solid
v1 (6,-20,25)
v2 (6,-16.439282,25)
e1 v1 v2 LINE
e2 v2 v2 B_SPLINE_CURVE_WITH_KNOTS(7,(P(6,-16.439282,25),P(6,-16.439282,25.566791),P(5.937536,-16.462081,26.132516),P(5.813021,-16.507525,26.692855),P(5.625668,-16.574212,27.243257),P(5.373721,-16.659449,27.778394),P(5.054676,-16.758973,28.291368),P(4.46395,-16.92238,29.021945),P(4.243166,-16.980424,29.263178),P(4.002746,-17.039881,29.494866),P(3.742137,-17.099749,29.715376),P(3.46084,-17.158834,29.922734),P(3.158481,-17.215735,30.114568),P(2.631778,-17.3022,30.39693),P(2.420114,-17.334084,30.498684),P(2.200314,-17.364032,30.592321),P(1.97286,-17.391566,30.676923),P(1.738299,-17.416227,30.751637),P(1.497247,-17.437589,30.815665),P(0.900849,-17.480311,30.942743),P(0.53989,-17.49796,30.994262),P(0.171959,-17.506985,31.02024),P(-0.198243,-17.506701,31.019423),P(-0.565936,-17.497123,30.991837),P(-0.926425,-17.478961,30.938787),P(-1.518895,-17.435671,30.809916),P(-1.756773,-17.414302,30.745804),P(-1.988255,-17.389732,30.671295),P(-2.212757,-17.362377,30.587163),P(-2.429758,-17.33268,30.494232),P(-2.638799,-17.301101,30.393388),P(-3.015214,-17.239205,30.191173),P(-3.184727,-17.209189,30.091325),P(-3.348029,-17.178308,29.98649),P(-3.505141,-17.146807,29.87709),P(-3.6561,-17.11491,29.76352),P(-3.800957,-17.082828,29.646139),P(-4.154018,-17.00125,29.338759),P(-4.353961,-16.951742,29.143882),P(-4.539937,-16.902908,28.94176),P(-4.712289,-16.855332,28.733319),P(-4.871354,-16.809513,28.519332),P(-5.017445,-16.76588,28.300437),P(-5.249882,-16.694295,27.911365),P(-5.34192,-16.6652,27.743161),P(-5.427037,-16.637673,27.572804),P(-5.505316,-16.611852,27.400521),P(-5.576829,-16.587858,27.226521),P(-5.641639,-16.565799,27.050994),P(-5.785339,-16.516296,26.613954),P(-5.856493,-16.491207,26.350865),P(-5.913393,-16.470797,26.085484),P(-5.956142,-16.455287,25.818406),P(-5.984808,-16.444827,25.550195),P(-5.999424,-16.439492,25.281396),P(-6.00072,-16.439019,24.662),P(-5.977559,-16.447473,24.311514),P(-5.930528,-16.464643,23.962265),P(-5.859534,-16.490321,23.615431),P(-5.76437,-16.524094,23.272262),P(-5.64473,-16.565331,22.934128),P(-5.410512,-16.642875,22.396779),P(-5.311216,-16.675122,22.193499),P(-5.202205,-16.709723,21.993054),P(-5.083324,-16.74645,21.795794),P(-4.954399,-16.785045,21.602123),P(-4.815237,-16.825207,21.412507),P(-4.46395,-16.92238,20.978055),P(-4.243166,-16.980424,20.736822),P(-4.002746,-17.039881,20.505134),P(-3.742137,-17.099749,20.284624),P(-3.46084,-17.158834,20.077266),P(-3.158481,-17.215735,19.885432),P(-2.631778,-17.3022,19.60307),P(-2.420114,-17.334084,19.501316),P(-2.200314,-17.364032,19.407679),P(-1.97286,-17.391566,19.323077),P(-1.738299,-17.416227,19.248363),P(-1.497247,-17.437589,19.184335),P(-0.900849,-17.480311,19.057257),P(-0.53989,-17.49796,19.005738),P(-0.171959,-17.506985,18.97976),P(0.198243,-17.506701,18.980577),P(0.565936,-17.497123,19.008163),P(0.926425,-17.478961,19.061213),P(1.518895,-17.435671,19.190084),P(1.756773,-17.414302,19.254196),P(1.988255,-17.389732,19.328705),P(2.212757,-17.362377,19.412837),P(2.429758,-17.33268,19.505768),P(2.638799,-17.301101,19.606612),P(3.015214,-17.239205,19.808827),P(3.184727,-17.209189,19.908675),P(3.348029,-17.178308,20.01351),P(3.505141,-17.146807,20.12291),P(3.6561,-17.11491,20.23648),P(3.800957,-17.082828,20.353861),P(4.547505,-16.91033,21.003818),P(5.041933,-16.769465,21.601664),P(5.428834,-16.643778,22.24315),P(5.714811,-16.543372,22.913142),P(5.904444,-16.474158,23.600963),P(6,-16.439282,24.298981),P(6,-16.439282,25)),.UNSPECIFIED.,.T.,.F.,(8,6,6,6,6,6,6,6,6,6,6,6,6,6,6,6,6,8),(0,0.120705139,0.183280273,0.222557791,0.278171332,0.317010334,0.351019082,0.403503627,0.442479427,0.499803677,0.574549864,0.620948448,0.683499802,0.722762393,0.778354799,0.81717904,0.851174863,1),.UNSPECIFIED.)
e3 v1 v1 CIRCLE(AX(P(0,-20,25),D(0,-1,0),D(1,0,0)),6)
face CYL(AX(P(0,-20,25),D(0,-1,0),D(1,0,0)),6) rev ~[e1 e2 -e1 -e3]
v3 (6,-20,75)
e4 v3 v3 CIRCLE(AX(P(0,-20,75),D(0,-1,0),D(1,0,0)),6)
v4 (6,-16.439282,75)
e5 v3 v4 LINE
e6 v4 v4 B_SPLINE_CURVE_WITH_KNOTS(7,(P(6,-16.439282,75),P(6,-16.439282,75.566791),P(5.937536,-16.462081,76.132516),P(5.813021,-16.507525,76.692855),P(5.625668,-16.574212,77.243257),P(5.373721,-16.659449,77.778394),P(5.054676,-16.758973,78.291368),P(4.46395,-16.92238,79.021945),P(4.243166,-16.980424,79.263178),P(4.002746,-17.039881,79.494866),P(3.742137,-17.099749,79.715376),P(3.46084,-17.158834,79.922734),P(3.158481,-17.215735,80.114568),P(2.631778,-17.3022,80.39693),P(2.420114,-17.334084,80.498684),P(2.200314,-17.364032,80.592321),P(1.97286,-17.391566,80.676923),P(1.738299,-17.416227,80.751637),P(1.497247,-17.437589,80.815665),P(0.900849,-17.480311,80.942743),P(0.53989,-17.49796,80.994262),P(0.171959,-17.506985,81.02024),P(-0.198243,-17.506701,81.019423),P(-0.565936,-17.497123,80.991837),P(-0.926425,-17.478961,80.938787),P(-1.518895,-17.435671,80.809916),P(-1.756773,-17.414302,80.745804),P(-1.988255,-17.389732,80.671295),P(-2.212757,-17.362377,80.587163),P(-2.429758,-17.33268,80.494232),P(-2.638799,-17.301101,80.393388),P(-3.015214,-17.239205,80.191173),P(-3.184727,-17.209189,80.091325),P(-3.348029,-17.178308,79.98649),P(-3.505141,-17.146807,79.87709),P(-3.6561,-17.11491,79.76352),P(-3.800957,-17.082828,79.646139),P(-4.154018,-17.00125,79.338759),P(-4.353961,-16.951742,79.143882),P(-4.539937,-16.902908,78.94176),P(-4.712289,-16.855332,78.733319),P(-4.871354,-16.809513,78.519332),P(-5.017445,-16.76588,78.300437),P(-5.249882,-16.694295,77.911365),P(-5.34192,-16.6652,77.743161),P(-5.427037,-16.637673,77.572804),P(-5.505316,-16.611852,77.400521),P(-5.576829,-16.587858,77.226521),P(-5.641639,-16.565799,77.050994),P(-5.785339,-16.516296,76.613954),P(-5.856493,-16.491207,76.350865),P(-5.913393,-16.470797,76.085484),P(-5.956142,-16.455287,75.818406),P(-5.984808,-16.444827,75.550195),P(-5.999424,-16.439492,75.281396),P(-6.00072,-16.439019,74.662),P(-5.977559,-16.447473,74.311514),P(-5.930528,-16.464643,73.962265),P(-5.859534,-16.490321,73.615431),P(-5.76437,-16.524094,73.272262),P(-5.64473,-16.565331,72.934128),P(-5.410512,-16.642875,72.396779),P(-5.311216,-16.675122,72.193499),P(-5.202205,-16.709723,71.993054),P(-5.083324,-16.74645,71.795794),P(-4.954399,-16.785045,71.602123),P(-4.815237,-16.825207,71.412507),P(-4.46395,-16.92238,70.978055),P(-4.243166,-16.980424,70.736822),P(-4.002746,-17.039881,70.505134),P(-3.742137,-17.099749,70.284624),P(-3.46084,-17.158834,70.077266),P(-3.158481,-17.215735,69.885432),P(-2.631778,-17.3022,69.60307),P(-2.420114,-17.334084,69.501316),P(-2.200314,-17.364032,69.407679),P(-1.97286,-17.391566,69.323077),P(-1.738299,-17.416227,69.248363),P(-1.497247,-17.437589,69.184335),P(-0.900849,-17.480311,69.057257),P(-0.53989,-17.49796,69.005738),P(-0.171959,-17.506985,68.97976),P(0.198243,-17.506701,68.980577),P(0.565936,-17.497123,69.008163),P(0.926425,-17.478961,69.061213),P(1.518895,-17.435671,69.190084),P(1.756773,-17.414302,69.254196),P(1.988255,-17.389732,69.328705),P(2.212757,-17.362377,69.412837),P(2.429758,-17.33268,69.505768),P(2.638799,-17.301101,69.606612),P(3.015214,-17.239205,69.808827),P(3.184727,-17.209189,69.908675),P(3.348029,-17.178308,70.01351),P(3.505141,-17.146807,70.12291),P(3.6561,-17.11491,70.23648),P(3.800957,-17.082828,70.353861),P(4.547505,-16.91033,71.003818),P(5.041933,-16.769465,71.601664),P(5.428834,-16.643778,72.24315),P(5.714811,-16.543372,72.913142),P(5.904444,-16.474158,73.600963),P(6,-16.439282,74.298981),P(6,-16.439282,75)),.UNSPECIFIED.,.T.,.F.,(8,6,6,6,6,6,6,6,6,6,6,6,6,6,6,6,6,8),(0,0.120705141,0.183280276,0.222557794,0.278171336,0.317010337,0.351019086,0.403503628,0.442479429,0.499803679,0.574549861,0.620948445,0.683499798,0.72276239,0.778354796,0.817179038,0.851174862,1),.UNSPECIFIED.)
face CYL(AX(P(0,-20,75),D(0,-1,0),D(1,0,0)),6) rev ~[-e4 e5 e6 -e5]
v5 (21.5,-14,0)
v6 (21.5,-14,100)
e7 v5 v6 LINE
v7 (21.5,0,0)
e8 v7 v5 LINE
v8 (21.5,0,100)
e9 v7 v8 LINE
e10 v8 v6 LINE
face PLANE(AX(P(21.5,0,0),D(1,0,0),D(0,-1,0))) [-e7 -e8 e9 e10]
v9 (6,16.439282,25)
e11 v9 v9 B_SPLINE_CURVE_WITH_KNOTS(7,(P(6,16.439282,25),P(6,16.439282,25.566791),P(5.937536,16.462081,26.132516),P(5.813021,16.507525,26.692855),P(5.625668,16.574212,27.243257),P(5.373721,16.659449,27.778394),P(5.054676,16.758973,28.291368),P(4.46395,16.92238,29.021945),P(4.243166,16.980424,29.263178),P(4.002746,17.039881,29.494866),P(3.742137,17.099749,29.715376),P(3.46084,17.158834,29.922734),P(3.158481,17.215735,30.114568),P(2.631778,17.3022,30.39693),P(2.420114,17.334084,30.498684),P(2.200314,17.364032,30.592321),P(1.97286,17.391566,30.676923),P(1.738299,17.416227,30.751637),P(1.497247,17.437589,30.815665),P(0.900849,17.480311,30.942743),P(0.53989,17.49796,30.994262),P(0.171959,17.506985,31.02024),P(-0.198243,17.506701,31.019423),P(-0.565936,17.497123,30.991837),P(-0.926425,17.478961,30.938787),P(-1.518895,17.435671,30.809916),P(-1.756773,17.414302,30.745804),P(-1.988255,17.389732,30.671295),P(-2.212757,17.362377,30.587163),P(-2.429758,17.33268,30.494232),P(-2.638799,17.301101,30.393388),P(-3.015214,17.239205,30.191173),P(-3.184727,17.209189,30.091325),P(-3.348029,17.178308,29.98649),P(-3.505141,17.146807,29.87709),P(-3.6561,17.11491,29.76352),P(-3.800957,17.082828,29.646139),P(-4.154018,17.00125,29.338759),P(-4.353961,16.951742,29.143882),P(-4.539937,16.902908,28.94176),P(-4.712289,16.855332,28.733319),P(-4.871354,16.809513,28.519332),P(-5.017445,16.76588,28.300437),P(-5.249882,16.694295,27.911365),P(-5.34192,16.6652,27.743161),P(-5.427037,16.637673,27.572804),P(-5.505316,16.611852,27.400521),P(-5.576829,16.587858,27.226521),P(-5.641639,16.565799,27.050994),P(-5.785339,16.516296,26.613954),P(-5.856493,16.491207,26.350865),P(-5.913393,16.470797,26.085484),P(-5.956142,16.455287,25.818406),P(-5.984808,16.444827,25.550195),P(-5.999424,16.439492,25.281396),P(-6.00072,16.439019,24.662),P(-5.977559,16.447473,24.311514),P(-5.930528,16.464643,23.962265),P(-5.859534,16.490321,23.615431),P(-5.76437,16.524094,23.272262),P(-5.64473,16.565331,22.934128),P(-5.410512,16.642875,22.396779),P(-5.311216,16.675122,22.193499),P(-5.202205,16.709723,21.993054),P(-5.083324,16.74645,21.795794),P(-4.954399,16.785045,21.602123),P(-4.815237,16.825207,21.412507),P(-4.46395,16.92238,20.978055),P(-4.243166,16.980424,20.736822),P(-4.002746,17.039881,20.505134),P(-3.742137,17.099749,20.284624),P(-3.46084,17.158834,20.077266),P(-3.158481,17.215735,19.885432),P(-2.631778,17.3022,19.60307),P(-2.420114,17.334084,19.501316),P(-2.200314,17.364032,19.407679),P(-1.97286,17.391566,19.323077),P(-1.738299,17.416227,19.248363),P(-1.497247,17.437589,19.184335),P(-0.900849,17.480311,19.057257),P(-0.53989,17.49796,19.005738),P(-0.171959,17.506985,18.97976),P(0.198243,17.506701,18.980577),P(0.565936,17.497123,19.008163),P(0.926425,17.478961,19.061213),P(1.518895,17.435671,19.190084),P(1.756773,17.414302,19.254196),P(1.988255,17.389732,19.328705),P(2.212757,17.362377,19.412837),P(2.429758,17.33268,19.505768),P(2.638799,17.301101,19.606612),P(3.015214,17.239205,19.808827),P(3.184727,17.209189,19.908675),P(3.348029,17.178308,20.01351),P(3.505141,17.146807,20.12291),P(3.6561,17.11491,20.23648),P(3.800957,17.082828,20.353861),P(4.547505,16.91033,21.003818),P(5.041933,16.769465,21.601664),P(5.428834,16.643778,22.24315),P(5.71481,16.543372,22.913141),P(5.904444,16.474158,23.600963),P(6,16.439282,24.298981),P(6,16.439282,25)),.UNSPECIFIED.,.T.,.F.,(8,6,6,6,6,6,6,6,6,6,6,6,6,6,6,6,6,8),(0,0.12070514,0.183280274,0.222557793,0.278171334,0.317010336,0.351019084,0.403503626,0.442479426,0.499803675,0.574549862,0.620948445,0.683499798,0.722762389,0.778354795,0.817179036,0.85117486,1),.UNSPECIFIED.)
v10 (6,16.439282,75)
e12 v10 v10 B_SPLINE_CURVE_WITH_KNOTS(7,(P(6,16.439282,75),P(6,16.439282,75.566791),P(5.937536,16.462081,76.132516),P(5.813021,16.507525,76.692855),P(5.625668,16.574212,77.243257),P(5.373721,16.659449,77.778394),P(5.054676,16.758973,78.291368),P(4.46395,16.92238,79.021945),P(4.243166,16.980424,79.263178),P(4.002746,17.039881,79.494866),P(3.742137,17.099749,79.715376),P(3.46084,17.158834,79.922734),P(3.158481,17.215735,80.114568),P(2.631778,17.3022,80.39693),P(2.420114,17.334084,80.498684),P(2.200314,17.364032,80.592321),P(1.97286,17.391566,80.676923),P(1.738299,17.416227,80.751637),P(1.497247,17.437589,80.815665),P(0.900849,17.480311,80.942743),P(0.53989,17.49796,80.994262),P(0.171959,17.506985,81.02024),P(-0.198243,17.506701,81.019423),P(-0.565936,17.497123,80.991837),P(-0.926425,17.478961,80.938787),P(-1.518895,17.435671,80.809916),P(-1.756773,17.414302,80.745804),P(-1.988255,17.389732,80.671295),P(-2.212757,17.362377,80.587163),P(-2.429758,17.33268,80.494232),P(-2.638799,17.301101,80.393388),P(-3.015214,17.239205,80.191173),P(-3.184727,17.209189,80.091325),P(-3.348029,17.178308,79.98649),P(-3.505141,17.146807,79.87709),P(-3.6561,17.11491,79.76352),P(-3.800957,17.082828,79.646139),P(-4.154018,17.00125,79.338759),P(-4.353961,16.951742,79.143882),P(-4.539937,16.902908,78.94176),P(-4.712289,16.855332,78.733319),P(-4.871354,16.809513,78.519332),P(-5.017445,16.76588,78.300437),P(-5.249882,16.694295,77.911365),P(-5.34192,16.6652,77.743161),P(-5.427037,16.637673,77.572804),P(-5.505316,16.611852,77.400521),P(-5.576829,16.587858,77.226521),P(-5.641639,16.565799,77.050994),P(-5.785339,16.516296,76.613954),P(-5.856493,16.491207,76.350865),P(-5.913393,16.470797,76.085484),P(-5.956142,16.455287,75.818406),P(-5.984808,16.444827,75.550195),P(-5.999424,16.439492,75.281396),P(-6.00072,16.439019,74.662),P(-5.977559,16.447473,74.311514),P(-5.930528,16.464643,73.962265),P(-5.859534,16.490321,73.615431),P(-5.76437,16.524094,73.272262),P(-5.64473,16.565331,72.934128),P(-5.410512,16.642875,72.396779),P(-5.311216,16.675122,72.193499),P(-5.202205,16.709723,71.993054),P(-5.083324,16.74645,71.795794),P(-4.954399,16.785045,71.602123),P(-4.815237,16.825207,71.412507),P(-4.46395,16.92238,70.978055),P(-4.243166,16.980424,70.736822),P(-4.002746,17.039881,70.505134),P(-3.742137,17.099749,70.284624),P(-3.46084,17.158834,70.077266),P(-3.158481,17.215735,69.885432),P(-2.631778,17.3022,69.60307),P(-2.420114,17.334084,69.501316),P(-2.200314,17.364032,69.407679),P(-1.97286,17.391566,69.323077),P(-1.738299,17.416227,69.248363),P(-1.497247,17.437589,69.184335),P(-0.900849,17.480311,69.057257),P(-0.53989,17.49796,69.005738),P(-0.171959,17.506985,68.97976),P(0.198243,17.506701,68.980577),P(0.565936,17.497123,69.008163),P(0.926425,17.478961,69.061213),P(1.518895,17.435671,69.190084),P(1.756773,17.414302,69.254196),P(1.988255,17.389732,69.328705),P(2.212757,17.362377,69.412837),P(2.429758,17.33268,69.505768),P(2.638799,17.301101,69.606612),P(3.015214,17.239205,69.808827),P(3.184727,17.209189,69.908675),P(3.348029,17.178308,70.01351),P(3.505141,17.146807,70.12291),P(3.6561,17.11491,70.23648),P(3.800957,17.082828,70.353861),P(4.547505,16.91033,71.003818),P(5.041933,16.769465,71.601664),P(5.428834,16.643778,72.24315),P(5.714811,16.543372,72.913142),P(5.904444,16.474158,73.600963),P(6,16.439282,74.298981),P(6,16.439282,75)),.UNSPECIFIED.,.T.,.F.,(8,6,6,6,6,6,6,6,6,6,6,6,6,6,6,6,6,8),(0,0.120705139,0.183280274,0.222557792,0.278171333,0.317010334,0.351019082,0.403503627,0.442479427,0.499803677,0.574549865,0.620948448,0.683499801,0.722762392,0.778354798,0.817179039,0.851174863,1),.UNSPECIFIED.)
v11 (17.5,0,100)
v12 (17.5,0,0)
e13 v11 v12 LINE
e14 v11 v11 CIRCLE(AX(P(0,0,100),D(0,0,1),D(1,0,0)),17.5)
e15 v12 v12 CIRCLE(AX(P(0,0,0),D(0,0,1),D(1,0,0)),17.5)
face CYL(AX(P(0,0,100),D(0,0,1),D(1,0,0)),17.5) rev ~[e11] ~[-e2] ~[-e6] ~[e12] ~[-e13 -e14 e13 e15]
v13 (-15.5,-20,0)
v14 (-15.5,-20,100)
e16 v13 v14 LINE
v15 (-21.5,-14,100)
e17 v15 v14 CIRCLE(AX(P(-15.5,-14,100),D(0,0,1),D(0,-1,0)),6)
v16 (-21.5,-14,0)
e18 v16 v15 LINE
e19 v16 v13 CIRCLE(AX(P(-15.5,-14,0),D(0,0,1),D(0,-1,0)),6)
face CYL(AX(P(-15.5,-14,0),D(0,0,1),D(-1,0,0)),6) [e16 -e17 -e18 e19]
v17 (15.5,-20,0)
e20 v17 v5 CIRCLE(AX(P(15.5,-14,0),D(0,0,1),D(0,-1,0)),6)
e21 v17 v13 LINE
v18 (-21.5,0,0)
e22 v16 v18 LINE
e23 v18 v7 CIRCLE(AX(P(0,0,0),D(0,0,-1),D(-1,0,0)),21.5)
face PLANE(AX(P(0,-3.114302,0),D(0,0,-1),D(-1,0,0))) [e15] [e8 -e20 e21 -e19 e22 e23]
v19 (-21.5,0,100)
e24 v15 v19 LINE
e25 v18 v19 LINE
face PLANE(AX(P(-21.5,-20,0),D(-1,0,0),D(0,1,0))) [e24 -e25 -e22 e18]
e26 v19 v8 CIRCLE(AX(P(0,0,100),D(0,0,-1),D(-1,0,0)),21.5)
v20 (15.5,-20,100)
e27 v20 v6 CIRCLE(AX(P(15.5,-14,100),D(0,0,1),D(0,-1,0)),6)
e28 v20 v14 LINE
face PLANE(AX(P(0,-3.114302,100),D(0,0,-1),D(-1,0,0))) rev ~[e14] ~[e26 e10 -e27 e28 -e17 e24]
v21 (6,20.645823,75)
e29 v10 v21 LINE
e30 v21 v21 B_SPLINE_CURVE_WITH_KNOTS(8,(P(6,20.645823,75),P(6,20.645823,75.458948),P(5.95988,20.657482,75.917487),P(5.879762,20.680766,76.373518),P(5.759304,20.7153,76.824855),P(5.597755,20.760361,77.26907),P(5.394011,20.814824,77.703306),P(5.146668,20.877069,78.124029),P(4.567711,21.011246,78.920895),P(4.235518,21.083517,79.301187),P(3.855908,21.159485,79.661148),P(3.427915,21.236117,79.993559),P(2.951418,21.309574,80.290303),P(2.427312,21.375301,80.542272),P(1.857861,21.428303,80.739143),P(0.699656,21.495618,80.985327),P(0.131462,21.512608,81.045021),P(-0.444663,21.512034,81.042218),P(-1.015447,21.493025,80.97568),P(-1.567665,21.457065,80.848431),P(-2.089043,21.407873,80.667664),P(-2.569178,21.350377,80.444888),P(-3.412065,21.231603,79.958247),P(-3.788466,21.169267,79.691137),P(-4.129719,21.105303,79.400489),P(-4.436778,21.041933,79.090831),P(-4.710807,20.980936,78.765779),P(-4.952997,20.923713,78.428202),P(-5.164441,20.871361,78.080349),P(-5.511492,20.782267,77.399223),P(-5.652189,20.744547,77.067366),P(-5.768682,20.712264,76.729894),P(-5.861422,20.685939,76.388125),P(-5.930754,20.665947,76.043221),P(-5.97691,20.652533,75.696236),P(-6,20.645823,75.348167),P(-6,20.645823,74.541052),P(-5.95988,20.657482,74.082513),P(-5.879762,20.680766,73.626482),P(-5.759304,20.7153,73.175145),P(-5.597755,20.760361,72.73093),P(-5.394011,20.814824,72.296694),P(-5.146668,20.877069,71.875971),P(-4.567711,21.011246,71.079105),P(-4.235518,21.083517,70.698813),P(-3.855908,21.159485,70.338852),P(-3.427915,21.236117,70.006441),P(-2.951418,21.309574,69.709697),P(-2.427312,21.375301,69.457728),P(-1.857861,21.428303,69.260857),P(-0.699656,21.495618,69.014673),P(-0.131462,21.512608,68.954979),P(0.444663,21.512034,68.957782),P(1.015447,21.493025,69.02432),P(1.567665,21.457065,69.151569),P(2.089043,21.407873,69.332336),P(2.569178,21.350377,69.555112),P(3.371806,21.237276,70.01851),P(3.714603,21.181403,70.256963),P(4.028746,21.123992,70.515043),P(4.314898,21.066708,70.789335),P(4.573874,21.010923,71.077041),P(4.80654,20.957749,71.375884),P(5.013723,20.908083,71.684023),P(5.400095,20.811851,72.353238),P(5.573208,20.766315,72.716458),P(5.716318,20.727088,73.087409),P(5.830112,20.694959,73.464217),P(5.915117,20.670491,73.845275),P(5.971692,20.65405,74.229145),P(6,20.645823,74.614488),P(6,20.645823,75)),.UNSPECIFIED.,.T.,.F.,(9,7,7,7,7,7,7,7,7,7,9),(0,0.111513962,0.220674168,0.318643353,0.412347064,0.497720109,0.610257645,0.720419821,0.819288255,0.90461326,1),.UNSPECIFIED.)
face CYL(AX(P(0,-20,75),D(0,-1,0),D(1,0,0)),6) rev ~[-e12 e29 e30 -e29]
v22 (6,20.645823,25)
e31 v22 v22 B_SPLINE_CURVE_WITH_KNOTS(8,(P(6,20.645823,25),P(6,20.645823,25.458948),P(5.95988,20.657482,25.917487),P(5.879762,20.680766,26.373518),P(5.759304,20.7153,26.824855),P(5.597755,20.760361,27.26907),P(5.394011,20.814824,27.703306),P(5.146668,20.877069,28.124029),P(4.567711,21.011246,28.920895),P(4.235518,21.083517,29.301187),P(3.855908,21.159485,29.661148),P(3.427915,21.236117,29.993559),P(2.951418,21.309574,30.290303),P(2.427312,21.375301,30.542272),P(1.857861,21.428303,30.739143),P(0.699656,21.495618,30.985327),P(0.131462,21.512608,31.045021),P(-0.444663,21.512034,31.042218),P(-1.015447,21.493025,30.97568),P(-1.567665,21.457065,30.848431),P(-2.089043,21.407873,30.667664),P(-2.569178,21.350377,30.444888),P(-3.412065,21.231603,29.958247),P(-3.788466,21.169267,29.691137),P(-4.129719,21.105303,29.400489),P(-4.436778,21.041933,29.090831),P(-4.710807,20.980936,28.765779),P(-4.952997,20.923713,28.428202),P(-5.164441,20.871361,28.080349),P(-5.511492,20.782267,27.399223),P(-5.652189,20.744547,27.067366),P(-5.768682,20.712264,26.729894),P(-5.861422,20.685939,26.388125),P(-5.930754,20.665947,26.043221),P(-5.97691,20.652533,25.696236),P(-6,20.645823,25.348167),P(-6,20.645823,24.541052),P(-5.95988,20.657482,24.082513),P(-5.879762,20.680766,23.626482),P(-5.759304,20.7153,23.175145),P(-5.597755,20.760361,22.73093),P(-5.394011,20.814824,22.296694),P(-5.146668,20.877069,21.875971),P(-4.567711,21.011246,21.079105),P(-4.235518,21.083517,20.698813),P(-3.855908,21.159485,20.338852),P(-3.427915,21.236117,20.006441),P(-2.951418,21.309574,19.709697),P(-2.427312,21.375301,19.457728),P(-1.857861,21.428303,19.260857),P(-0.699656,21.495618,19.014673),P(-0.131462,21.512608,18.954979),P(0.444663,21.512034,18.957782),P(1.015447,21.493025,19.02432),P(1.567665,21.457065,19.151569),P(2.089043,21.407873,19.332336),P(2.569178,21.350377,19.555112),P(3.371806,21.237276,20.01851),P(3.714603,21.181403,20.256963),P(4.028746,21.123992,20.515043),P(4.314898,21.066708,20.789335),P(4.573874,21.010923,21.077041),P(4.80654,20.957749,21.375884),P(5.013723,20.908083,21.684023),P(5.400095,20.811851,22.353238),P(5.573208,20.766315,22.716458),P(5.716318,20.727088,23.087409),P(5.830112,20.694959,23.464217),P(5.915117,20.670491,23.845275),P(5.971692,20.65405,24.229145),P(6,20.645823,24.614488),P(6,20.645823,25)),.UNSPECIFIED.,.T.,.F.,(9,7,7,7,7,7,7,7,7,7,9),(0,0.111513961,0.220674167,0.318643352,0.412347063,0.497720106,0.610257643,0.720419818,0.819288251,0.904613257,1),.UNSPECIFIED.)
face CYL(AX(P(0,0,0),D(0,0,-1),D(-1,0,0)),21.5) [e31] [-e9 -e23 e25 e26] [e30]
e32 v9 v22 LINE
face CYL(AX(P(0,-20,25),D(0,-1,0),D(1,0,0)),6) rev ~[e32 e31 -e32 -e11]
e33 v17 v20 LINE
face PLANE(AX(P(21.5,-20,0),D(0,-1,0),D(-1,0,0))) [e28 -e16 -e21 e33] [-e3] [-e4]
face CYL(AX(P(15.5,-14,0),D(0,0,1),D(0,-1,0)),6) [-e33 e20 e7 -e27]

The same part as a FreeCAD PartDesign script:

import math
import FreeCAD as App
import Part
import Sketcher

V = App.Vector


def edges_at(feature, points):
    """Names of the edges that pass closest to the given points."""
    edges = feature.Shape.Edges
    near = lambda p: min(range(len(edges)), key=lambda i: edges[i].distToShape(Part.Vertex(*p))[0])
    return sorted({f"Edge{near(p) + 1}" for p in points})

doc = App.newDocument("Part")
body = doc.addObject("PartDesign::Body", "Body")

sketch1 = body.newObject("Sketcher::SketchObject", "Sketch")
sketch1.AttachmentSupport = (doc.getObject("XY_Plane"), [""])
sketch1.MapMode = "FlatFace"
sketch1.addGeometry([
    Part.LineSegment(V(-22, 0, 0), V(-22, -20, 0)),
    Part.LineSegment(V(-22, -20, 0), V(22, -20, 0)),
    Part.LineSegment(V(22, -20, 0), V(22, 0, 0)),
    Part.ArcOfCircle(Part.Circle(V(0, 0, 0), V(0, 0, 1), 22), math.radians(0), math.radians(180)),
], False)
sketch1.addConstraint([
    Sketcher.Constraint("Coincident", 0, 2, 1, 1),
    Sketcher.Constraint("Coincident", 1, 2, 2, 1),
    Sketcher.Constraint("Tangent", 2, 2, 3, 1),
    Sketcher.Constraint("Tangent", 3, 2, 0, 1),
    Sketcher.Constraint("Vertical", 0),
    Sketcher.Constraint("Horizontal", 1),
    Sketcher.Constraint("Vertical", 2),
    Sketcher.Constraint("Coincident", 3, 3, -1, 1),
    Sketcher.Constraint("Radius", 3, 21.5),
    Sketcher.Constraint("DistanceY", 0, 2, 0, 1, 20.0),
])
pad1 = body.newObject("PartDesign::Pad", "Pad")
pad1.Profile = sketch1
pad1.Length = 100

sketch2 = body.newObject("Sketcher::SketchObject", "Sketch001")
sketch2.AttachmentSupport = (doc.getObject("XY_Plane"), [""])
sketch2.MapMode = "FlatFace"
sketch2.AttachmentOffset = App.Placement(V(0, 0, 100), App.Rotation())
sketch2.addGeometry(Part.Circle(V(0, 0, 0), V(0, 0, 1), 18), False)
sketch2.addConstraint([
    Sketcher.Constraint("Coincident", 0, 3, -1, 1),
    Sketcher.Constraint("Diameter", 0, 35.0),
])
pocket1 = body.newObject("PartDesign::Pocket", "Pocket")
pocket1.Profile = sketch2
pocket1.Type = "ThroughAll"

sketch3 = body.newObject("Sketcher::SketchObject", "Sketch002")
sketch3.AttachmentSupport = (doc.getObject("XZ_Plane"), [""])
sketch3.MapMode = "FlatFace"
sketch3.AttachmentOffset = App.Placement(V(0, 0, 20), App.Rotation())
sketch3.addGeometry([
    Part.Circle(V(0, 25, 0), V(0, 0, 1), 6),
    Part.Circle(V(0, 75, 0), V(0, 0, 1), 6),
], False)
sketch3.addConstraint([
    Sketcher.Constraint("Equal", 0, 1),
    Sketcher.Constraint("PointOnObject", 0, 3, -2),
    Sketcher.Constraint("PointOnObject", 1, 3, -2),
    Sketcher.Constraint("Diameter", 0, 12.0),
    Sketcher.Constraint("DistanceY", -1, 1, 0, 3, 25.0),
    Sketcher.Constraint("DistanceY", -1, 1, 1, 3, 75.0),
])
pocket2 = body.newObject("PartDesign::Pocket", "Pocket001")
pocket2.Profile = sketch3
pocket2.Type = "ThroughAll"
doc.recompute()

fillet = body.newObject("PartDesign::Fillet", "Fillet")
fillet.Base = (pocket2, edges_at(pocket2, [(21.5, -20, 50), (-21.5, -20, 50)]))
fillet.Radius = 6

doc.recompute()
